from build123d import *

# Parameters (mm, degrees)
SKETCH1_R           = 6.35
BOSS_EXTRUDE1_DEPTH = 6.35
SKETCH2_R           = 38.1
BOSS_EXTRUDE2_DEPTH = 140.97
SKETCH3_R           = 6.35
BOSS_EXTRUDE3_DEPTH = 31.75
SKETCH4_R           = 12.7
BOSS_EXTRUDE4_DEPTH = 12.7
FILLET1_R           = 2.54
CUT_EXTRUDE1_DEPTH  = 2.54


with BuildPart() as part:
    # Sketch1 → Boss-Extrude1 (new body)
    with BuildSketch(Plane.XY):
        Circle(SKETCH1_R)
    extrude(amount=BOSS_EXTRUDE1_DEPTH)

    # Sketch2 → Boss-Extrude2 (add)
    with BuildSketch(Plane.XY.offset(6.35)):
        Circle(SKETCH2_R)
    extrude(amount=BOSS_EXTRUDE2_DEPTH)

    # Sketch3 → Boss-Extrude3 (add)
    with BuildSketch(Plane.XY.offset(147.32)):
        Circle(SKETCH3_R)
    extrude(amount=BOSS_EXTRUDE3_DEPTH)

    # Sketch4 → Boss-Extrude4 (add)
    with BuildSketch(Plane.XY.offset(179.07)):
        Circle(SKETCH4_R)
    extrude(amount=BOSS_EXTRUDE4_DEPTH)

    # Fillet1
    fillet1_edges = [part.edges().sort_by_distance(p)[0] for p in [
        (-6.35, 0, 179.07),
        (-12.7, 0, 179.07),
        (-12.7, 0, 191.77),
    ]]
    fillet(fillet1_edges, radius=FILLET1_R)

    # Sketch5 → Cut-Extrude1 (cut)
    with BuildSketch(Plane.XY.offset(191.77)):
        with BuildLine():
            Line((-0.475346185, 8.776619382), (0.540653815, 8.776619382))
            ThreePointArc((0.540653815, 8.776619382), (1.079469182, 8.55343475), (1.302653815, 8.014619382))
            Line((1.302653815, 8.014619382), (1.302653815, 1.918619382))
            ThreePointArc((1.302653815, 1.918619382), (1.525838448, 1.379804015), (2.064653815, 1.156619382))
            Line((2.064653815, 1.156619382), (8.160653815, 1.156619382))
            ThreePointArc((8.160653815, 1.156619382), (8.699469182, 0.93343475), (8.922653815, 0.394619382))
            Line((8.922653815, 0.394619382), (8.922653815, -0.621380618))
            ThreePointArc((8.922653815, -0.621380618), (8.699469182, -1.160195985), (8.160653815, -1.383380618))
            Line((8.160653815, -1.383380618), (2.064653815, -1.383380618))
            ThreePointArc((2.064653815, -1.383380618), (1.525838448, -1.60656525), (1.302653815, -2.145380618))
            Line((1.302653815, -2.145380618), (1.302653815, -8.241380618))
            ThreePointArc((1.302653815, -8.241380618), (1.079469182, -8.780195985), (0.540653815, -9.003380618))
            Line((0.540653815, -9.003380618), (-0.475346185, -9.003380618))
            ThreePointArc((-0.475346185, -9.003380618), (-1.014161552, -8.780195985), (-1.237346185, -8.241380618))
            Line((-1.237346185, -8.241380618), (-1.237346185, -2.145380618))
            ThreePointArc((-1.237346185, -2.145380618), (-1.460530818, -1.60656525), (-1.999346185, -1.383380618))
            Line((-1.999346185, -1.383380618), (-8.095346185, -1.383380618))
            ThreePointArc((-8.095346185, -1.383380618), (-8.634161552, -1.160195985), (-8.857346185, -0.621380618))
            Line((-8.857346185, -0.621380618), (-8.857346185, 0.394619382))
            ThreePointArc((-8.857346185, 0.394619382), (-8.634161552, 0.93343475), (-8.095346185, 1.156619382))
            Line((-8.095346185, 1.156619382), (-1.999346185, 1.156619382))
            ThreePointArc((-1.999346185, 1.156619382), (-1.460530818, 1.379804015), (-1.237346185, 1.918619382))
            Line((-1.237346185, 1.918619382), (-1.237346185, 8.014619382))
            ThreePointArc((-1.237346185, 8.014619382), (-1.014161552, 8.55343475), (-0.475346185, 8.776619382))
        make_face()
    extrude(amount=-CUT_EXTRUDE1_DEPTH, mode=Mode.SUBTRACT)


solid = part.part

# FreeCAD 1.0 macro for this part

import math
import FreeCAD as App
import Part
import Sketcher

V = App.Vector
Q = App.Units.Quantity


def edges_at(feature, points):
    """Names of the edges that pass closest to the given points."""
    edges = feature.Shape.Edges
    near = lambda p: min(range(len(edges)), key=lambda i: edges[i].distToShape(Part.Vertex(*p))[0])
    return sorted({f"Edge{near(p) + 1}" for p in points})

doc = App.newDocument("Part")
params = doc.addObject("Spreadsheet::Sheet", "Params")
for row, (alias, value) in enumerate([
    ("sketch1_diameter", "0.5 in"),
    ("pad1_length", "0.25 in"),
    ("sketch2_diameter", "3 in"),
    ("pad2_length", "5.55 in"),
    ("sketch3_diameter", "0.5 in"),
    ("pad3_length", "1.25 in"),
    ("sketch4_diameter", "1 in"),
    ("pad4_length", "0.5 in"),
    ("fillet_radius", "0.1 in"),
    ("sketch5_radius", "0.03 in"),
    ("sketch5_width", "0.04 in"),
    ("sketch5_width2", "0.24 in"),
    ("pocket1_length", "0.1 in"),
], start=1):
    params.set(f"A{row}", alias)
    params.set(f"B{row}", "=" + value)
    params.setAlias(f"B{row}", alias)

body = doc.addObject("PartDesign::Body", "Body")

# Sketch on XY plane
sketch1 = body.newObject("Sketcher::SketchObject", "Sketch")
sketch1.AttachmentSupport = (doc.getObject("XY_Plane"), [""])
sketch1.MapMode = "FlatFace"
sketch1.addGeometry(Part.Circle(V(0, 0, 0), V(0, 0, 1), 6), False)
sketch1.addConstraint([
    Sketcher.Constraint("Coincident", 0, 3, -1, 1),
    Sketcher.Constraint("Diameter", 0, Q("0.5 in")),
])
sketch1.setExpression("Constraints[1]", "Params.sketch1_diameter")
pad1 = body.newObject("PartDesign::Pad", "Pad")
pad1.Profile = sketch1
pad1.setExpression("Length", "Params.pad1_length")

# Sketch on XY plane
sketch2 = body.newObject("Sketcher::SketchObject", "Sketch001")
sketch2.AttachmentSupport = (doc.getObject("XY_Plane"), [""])
sketch2.MapMode = "FlatFace"
sketch2.AttachmentOffset = App.Placement(V(0, 0, 0.25 * 25.4), App.Rotation())
sketch2.addGeometry(Part.Circle(V(0, 0, 0), V(0, 0, 1), 38), False)
sketch2.addConstraint([
    Sketcher.Constraint("Coincident", 0, 3, -1, 1),
    Sketcher.Constraint("Diameter", 0, Q("3 in")),
])
sketch2.setExpression("Constraints[1]", "Params.sketch2_diameter")
pad2 = body.newObject("PartDesign::Pad", "Pad001")
pad2.Profile = sketch2
pad2.setExpression("Length", "Params.pad2_length")

# Sketch on XY plane
sketch3 = body.newObject("Sketcher::SketchObject", "Sketch002")
sketch3.AttachmentSupport = (doc.getObject("XY_Plane"), [""])
sketch3.MapMode = "FlatFace"
sketch3.AttachmentOffset = App.Placement(V(0, 0, 5.8 * 25.4), App.Rotation())
sketch3.addGeometry(Part.Circle(V(0, 0, 0), V(0, 0, 1), 6), False)
sketch3.addConstraint([
    Sketcher.Constraint("Coincident", 0, 3, -1, 1),
    Sketcher.Constraint("Diameter", 0, Q("0.5 in")),
])
sketch3.setExpression("Constraints[1]", "Params.sketch3_diameter")
pad3 = body.newObject("PartDesign::Pad", "Pad002")
pad3.Profile = sketch3
pad3.setExpression("Length", "Params.pad3_length")

# Sketch on XY plane
sketch4 = body.newObject("Sketcher::SketchObject", "Sketch003")
sketch4.AttachmentSupport = (doc.getObject("XY_Plane"), [""])
sketch4.MapMode = "FlatFace"
sketch4.AttachmentOffset = App.Placement(V(0, 0, 7.05 * 25.4), App.Rotation())
sketch4.addGeometry(Part.Circle(V(0, 0, 0), V(0, 0, 1), 13), False)
sketch4.addConstraint([
    Sketcher.Constraint("Coincident", 0, 3, -1, 1),
    Sketcher.Constraint("Diameter", 0, Q("1 in")),
])
sketch4.setExpression("Constraints[1]", "Params.sketch4_diameter")
pad4 = body.newObject("PartDesign::Pad", "Pad003")
pad4.Profile = sketch4
pad4.setExpression("Length", "Params.pad4_length")
doc.recompute()

fillet = body.newObject("PartDesign::Fillet", "Fillet")
fillet.Base = (pad4, edges_at(pad4, [(-6.35, 0, 179.07), (-12.7, 0, 179.07), (-12.7, 0, 191.77)]))
fillet.setExpression("Radius", "Params.fillet_radius")

# Sketch on XY plane
sketch5 = body.newObject("Sketcher::SketchObject", "Sketch004")
sketch5.AttachmentSupport = (doc.getObject("XY_Plane"), [""])
sketch5.MapMode = "FlatFace"
sketch5.AttachmentOffset = App.Placement(V(0, 0, 7.55 * 25.4), App.Rotation())
sketch5.addGeometry([
    Part.LineSegment(V(0.5, 8.8, 0), V(-0.5, 8.8, 0)),  # 0
    Part.ArcOfCircle(Part.Circle(V(-0.5, 8, 0), V(0, 0, 1), 0.8), math.radians(90), math.radians(180)),  # 1
    Part.LineSegment(V(-1.2, 8, 0), V(-1.2, 1.9, 0)),  # 2
    Part.ArcOfCircle(Part.Circle(V(-2, 1.9, 0), V(0, 0, 1), 0.8), math.radians(-90), math.radians(0)),  # 3
    Part.LineSegment(V(-2, 1.2, 0), V(-8.1, 1.2, 0)),  # 4
    Part.ArcOfCircle(Part.Circle(V(-8.1, 0.4, 0), V(0, 0, 1), 0.8), math.radians(90), math.radians(180)),  # 5
    Part.LineSegment(V(-8.9, 0.4, 0), V(-8.9, -0.6, 0)),  # 6
    Part.ArcOfCircle(Part.Circle(V(-8.1, -0.6, 0), V(0, 0, 1), 0.8), math.radians(-180), math.radians(-90)),  # 7
    Part.LineSegment(V(-8.1, -1.4, 0), V(-2, -1.4, 0)),  # 8
    Part.ArcOfCircle(Part.Circle(V(-2, -2.1, 0), V(0, 0, 1), 0.8), math.radians(0), math.radians(90)),  # 9
    Part.LineSegment(V(-1.2, -2.1, 0), V(-1.2, -8.2, 0)),  # 10
    Part.ArcOfCircle(Part.Circle(V(-0.5, -8.2, 0), V(0, 0, 1), 0.8), math.radians(-180), math.radians(-90)),  # 11
    Part.LineSegment(V(-0.5, -9, 0), V(0.5, -9, 0)),  # 12
    Part.ArcOfCircle(Part.Circle(V(0.5, -8.2, 0), V(0, 0, 1), 0.8), math.radians(-90), math.radians(0)),  # 13
    Part.LineSegment(V(1.3, -8.2, 0), V(1.3, -2.1, 0)),  # 14
    Part.ArcOfCircle(Part.Circle(V(2.1, -2.1, 0), V(0, 0, 1), 0.8), math.radians(90), math.radians(180)),  # 15
    Part.LineSegment(V(2.1, -1.4, 0), V(8.2, -1.4, 0)),  # 16
    Part.ArcOfCircle(Part.Circle(V(8.2, -0.6, 0), V(0, 0, 1), 0.8), math.radians(-90), math.radians(0)),  # 17
    Part.LineSegment(V(8.9, -0.6, 0), V(8.9, 0.4, 0)),  # 18
    Part.ArcOfCircle(Part.Circle(V(8.2, 0.4, 0), V(0, 0, 1), 0.8), math.radians(0), math.radians(90)),  # 19
    Part.LineSegment(V(8.2, 1.2, 0), V(2.1, 1.2, 0)),  # 20
    Part.ArcOfCircle(Part.Circle(V(2.1, 1.9, 0), V(0, 0, 1), 0.8), math.radians(-180), math.radians(-90)),  # 21
    Part.LineSegment(V(1.3, 1.9, 0), V(1.3, 8, 0)),  # 22
    Part.ArcOfCircle(Part.Circle(V(0.5, 8, 0), V(0, 0, 1), 0.8), math.radians(0), math.radians(90)),  # 23
], False)
sketch5.addConstraint([
    Sketcher.Constraint("Tangent", 0, 2, 1, 1),
    Sketcher.Constraint("Tangent", 1, 2, 2, 1),
    Sketcher.Constraint("Tangent", 2, 2, 3, 2),
    Sketcher.Constraint("Tangent", 3, 1, 4, 1),
    Sketcher.Constraint("Tangent", 4, 2, 5, 1),
    Sketcher.Constraint("Tangent", 5, 2, 6, 1),
    Sketcher.Constraint("Tangent", 6, 2, 7, 1),
    Sketcher.Constraint("Tangent", 7, 2, 8, 1),
    Sketcher.Constraint("Tangent", 8, 2, 9, 2),
    Sketcher.Constraint("Tangent", 9, 1, 10, 1),
    Sketcher.Constraint("Tangent", 10, 2, 11, 1),
    Sketcher.Constraint("Tangent", 11, 2, 12, 1),
    Sketcher.Constraint("Tangent", 12, 2, 13, 1),
    Sketcher.Constraint("Tangent", 13, 2, 14, 1),
    Sketcher.Constraint("Tangent", 14, 2, 15, 2),
    Sketcher.Constraint("Tangent", 15, 1, 16, 1),
    Sketcher.Constraint("Tangent", 16, 2, 17, 1),
    Sketcher.Constraint("Tangent", 17, 2, 18, 1),
    Sketcher.Constraint("Tangent", 18, 2, 19, 1),
    Sketcher.Constraint("Tangent", 19, 2, 20, 1),
    Sketcher.Constraint("Tangent", 20, 2, 21, 2),
    Sketcher.Constraint("Tangent", 21, 1, 22, 1),
    Sketcher.Constraint("Tangent", 22, 2, 23, 1),
    Sketcher.Constraint("Tangent", 23, 2, 0, 1),
    Sketcher.Constraint("Horizontal", 0),
    Sketcher.Constraint("Vertical", 2),
    Sketcher.Constraint("Horizontal", 4),
    Sketcher.Constraint("Vertical", 6),
    Sketcher.Constraint("Horizontal", 8),
    Sketcher.Constraint("Vertical", 10),
    Sketcher.Constraint("Horizontal", 12),
    Sketcher.Constraint("Vertical", 14),
    Sketcher.Constraint("Horizontal", 16),
    Sketcher.Constraint("Vertical", 18),
    Sketcher.Constraint("Horizontal", 20),
    Sketcher.Constraint("Vertical", 22),
    Sketcher.Constraint("Equal", 1, 3),
    Sketcher.Constraint("Equal", 3, 5),
    Sketcher.Constraint("Equal", 5, 7),
    Sketcher.Constraint("Equal", 7, 9),
    Sketcher.Constraint("Equal", 9, 11),
    Sketcher.Constraint("Equal", 11, 13),
    Sketcher.Constraint("Equal", 13, 15),
    Sketcher.Constraint("Equal", 15, 17),
    Sketcher.Constraint("Equal", 17, 19),
    Sketcher.Constraint("Equal", 19, 21),
    Sketcher.Constraint("Equal", 21, 23),
    Sketcher.Constraint("Horizontal", 9, 3, 15, 3),
    Sketcher.Constraint("Horizontal", 5, 3, 19, 3),
    Sketcher.Constraint("Vertical", 3, 3, 9, 3),
    Sketcher.Constraint("Vertical", 15, 3, 21, 3),
    Sketcher.Constraint("Equal", 8, 16),
    Sketcher.Constraint("Equal", 20, 2),
    Sketcher.Constraint("Equal", 12, 6),
    Sketcher.Constraint("Equal", 2, 10),
    Sketcher.Constraint("Radius", 1, Q("0.03 in")),
    Sketcher.Constraint("DistanceX", 0, 2, 0, 1, Q("0.04 in")),
    Sketcher.Constraint("DistanceX", 4, 2, 4, 1, Q("0.24 in")),
    Sketcher.Constraint("DistanceY", -1, 1, 1, 3, Q("8.014619 mm")),
    Sketcher.Constraint("DistanceX", 1, 3, -1, 1, Q("0.475346 mm")),
])
sketch5.setExpression("Constraints[55]", "Params.sketch5_radius")
sketch5.setExpression("Constraints[56]", "Params.sketch5_width")
sketch5.setExpression("Constraints[57]", "Params.sketch5_width2")
pocket1 = body.newObject("PartDesign::Pocket", "Pocket")
pocket1.Profile = sketch5
pocket1.setExpression("Length", "Params.pocket1_length")

doc.recompute()
